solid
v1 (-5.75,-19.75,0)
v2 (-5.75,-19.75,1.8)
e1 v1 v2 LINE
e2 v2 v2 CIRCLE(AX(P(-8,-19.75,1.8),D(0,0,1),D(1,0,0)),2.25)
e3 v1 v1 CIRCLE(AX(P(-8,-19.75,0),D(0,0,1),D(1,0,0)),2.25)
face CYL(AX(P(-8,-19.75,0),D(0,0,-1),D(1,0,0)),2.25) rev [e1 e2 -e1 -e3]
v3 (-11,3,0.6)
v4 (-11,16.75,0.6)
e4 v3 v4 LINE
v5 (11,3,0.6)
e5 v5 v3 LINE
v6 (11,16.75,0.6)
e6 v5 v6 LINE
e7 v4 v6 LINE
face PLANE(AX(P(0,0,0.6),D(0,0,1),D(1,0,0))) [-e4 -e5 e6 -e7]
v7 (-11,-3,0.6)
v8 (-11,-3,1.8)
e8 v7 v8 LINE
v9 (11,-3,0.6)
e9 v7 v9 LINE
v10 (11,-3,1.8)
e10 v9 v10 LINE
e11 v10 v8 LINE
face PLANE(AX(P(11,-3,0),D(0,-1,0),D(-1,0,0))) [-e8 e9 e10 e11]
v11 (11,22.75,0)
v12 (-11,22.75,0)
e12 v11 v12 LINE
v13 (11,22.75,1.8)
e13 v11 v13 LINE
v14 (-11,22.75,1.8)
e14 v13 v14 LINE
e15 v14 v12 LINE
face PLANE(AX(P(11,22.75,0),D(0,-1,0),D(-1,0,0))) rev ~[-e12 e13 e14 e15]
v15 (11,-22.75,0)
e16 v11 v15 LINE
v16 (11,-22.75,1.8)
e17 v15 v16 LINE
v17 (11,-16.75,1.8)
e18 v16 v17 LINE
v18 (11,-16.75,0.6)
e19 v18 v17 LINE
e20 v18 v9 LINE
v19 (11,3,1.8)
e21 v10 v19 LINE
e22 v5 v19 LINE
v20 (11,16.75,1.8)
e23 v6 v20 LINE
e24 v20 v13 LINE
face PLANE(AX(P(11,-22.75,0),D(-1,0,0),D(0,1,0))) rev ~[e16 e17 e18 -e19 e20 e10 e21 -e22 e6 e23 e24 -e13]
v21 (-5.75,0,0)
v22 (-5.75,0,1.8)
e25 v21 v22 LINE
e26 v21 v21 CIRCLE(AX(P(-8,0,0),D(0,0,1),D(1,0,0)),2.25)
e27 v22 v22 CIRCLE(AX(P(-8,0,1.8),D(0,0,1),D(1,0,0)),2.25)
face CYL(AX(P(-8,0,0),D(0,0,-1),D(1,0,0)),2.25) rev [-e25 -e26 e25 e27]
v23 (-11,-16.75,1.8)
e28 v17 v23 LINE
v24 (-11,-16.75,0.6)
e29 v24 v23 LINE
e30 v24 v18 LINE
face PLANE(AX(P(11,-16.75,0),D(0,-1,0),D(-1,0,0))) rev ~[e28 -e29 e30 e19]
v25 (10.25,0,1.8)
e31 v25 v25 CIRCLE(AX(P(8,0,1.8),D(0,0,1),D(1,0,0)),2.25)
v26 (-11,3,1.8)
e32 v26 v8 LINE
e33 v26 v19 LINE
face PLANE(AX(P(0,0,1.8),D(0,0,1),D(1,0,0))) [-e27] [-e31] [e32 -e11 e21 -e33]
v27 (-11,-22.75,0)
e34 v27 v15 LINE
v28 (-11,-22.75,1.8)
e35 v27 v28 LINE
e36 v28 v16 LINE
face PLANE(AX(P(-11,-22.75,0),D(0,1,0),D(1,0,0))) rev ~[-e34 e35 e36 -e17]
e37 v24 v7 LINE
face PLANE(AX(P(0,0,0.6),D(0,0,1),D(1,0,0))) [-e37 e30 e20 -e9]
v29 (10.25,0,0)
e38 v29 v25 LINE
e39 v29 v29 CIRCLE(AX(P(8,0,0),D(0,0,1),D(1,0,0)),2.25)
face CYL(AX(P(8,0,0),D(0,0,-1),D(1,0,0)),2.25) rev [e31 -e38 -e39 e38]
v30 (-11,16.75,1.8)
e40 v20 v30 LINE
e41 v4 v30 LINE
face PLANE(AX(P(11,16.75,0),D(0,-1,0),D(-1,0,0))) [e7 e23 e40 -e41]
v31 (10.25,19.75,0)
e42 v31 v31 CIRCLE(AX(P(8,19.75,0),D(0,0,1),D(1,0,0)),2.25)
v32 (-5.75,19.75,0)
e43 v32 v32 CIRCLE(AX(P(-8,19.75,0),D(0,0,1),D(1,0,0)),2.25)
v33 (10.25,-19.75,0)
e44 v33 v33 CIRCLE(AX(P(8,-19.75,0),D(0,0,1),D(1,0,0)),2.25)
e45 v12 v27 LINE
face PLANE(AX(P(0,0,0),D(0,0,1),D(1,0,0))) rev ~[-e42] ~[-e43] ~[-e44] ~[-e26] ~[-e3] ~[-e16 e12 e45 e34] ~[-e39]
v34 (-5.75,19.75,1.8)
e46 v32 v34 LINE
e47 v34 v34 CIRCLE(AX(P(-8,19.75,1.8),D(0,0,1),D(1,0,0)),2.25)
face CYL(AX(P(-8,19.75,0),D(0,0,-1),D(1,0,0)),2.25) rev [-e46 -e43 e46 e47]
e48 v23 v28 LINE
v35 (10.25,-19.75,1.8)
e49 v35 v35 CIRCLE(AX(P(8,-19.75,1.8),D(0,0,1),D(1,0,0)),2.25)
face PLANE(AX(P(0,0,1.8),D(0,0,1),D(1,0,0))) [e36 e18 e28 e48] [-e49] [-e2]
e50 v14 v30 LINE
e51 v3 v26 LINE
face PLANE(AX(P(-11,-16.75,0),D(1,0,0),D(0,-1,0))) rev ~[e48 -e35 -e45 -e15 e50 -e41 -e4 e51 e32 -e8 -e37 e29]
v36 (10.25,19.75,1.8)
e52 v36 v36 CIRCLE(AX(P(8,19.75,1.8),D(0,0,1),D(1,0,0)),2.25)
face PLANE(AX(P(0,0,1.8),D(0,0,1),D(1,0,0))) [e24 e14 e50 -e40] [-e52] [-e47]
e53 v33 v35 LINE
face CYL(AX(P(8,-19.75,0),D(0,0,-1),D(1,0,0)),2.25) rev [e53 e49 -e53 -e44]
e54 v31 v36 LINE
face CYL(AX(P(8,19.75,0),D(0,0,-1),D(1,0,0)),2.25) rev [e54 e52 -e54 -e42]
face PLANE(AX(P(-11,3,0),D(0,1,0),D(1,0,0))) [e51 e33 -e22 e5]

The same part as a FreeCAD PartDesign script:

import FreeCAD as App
import Part
import Sketcher
from FreeCAD import Vector

doc = App.newDocument("Part")
body = doc.addObject("PartDesign::Body", "Body")

# Sketch on XY plane
sketch1 = doc.addObject("Sketcher::SketchObject", "Sketch")
body.addObject(sketch1)
sketch1.AttachmentSupport = (doc.XY_Plane, [""])
sketch1.MapMode = "FlatFace"
sketch1.addGeometry([
    Part.LineSegment(Vector(-11, -22.8, 0), Vector(11, -22.8, 0)),  # 0
    Part.LineSegment(Vector(11, -22.8, 0), Vector(11, 22.8, 0)),  # 1
    Part.LineSegment(Vector(11, 22.8, 0), Vector(-11, 22.8, 0)),  # 2
    Part.LineSegment(Vector(-11, 22.8, 0), Vector(-11, -22.8, 0)),  # 3
    Part.Circle(Vector(-8, -19.8, 0), Vector(0, 0, 1), 2.2),  # 4
    Part.Circle(Vector(8, -19.8, 0), Vector(0, 0, 1), 2.2),  # 5
    Part.Circle(Vector(8, 0, 0), Vector(0, 0, 1), 2.2),  # 6
    Part.Circle(Vector(-8, 0, 0), Vector(0, 0, 1), 2.2),  # 7
    Part.Circle(Vector(8, 19.8, 0), Vector(0, 0, 1), 2.2),  # 8
    Part.Circle(Vector(-8, 19.8, 0), Vector(0, 0, 1), 2.2),  # 9
], False)
sketch1.addConstraint([
    Sketcher.Constraint("Coincident", 0, 2, 1, 1),
    Sketcher.Constraint("Coincident", 1, 2, 2, 1),
    Sketcher.Constraint("Coincident", 2, 2, 3, 1),
    Sketcher.Constraint("Coincident", 3, 2, 0, 1),
    Sketcher.Constraint("Horizontal", 0),
    Sketcher.Constraint("Vertical", 1),
    Sketcher.Constraint("Horizontal", 2),
    Sketcher.Constraint("Vertical", 3),
    Sketcher.Constraint("Equal", 4, 5),
    Sketcher.Constraint("Equal", 5, 6),
    Sketcher.Constraint("Equal", 6, 7),
    Sketcher.Constraint("Equal", 7, 8),
    Sketcher.Constraint("Equal", 8, 9),
    Sketcher.Constraint("Symmetric", 6, 3, 7, 3, -1, 1),
    Sketcher.Constraint("Symmetric", 4, 3, 8, 3, -1, 1),
    Sketcher.Constraint("Symmetric", 5, 3, 9, 3, -1, 1),
    Sketcher.Constraint("Symmetric", 0, 2, 2, 2, -1, 1),
    Sketcher.Constraint("Symmetric", 4, 3, 5, 3, -2),
    Sketcher.Constraint("PointOnObject", 6, 3, -1),
    Sketcher.Constraint("Vertical", 5, 3, 6, 3),
    Sketcher.Constraint("Diameter", 4, 4.5),
    Sketcher.Constraint("DistanceX", 0, 1, 0, 2, 22.0),
    Sketcher.Constraint("DistanceX", 5, 3, 0, 2, 3.0),
    Sketcher.Constraint("DistanceY", 0, 2, 5, 3, 3.0),
    Sketcher.Constraint("DistanceY", 1, 1, 1, 2, 45.5),
])
pad1 = doc.addObject("PartDesign::Pad", "Pad")
body.addObject(pad1)
pad1.Profile = sketch1
pad1.Length = 0.6

# Sketch on XY plane
sketch2 = doc.addObject("Sketcher::SketchObject", "Sketch001")
body.addObject(sketch2)
sketch2.AttachmentSupport = (doc.XY_Plane, [""])
sketch2.MapMode = "FlatFace"
sketch2.addGeometry([
    Part.LineSegment(Vector(-11, -16.8, 0), Vector(-11, -22.8, 0)),  # 0
    Part.LineSegment(Vector(-11, -22.8, 0), Vector(11, -22.8, 0)),  # 1
    Part.LineSegment(Vector(11, -22.8, 0), Vector(11, -16.8, 0)),  # 2
    Part.LineSegment(Vector(11, -16.8, 0), Vector(-11, -16.8, 0)),  # 3
    Part.Circle(Vector(-8, -19.8, 0), Vector(0, 0, 1), 2.2),  # 4
    Part.Circle(Vector(8, -19.8, 0), Vector(0, 0, 1), 2.2),  # 5
    Part.LineSegment(Vector(-11, 3, 0), Vector(-11, -3, 0)),  # 6
    Part.LineSegment(Vector(-11, -3, 0), Vector(11, -3, 0)),  # 7
    Part.LineSegment(Vector(11, -3, 0), Vector(11, 3, 0)),  # 8
    Part.LineSegment(Vector(11, 3, 0), Vector(-11, 3, 0)),  # 9
    Part.Circle(Vector(-8, 0, 0), Vector(0, 0, 1), 2.2),  # 10
    Part.Circle(Vector(8, 0, 0), Vector(0, 0, 1), 2.2),  # 11
    Part.LineSegment(Vector(-11, 22.8, 0), Vector(-11, 16.8, 0)),  # 12
    Part.LineSegment(Vector(-11, 16.8, 0), Vector(11, 16.8, 0)),  # 13
    Part.LineSegment(Vector(11, 16.8, 0), Vector(11, 22.8, 0)),  # 14
    Part.LineSegment(Vector(11, 22.8, 0), Vector(-11, 22.8, 0)),  # 15
    Part.Circle(Vector(-8, 19.8, 0), Vector(0, 0, 1), 2.2),  # 16
    Part.Circle(Vector(8, 19.8, 0), Vector(0, 0, 1), 2.2),  # 17
], False)
sketch2.addConstraint([
    Sketcher.Constraint("Coincident", 0, 2, 1, 1),
    Sketcher.Constraint("Coincident", 1, 2, 2, 1),
    Sketcher.Constraint("Coincident", 2, 2, 3, 1),
    Sketcher.Constraint("Coincident", 3, 2, 0, 1),
    Sketcher.Constraint("Coincident", 6, 2, 7, 1),
    Sketcher.Constraint("Coincident", 7, 2, 8, 1),
    Sketcher.Constraint("Coincident", 8, 2, 9, 1),
    Sketcher.Constraint("Coincident", 9, 2, 6, 1),
    Sketcher.Constraint("Coincident", 12, 2, 13, 1),
    Sketcher.Constraint("Coincident", 13, 2, 14, 1),
    Sketcher.Constraint("Coincident", 14, 2, 15, 1),
    Sketcher.Constraint("Coincident", 15, 2, 12, 1),
    Sketcher.Constraint("Vertical", 0),
    Sketcher.Constraint("Horizontal", 1),
    Sketcher.Constraint("Vertical", 2),
    Sketcher.Constraint("Horizontal", 3),
    Sketcher.Constraint("Vertical", 6),
    Sketcher.Constraint("Horizontal", 7),
    Sketcher.Constraint("Vertical", 8),
    Sketcher.Constraint("Horizontal", 9),
    Sketcher.Constraint("Vertical", 12),
    Sketcher.Constraint("Horizontal", 13),
    Sketcher.Constraint("Vertical", 14),
    Sketcher.Constraint("Horizontal", 15),
    Sketcher.Constraint("Equal", 4, 5),
    Sketcher.Constraint("Equal", 5, 10),
    Sketcher.Constraint("Equal", 10, 11),
    Sketcher.Constraint("Equal", 11, 16),
    Sketcher.Constraint("Equal", 16, 17),
    Sketcher.Constraint("Symmetric", 10, 3, 11, 3, -1, 1),
    Sketcher.Constraint("Symmetric", 5, 3, 16, 3, -1, 1),
    Sketcher.Constraint("Symmetric", 4, 3, 17, 3, -1, 1),
    Sketcher.Constraint("Symmetric", 6, 2, 8, 2, -1, 1),
    Sketcher.Constraint("Symmetric", 2, 2, 12, 2, -1, 1),
    Sketcher.Constraint("Symmetric", 0, 2, 14, 2, -1, 1),
    Sketcher.Constraint("Symmetric", 4, 3, 5, 3, -2),
    Sketcher.Constraint("PointOnObject", 10, 3, -1),
    Sketcher.Constraint("Vertical", 4, 3, 10, 3),
    Sketcher.Constraint("Vertical", 3, 2, 6, 2),
    Sketcher.Constraint("Vertical", 2, 2, 7, 2),
    Sketcher.Constraint("Equal", 2, 6),
    Sketcher.Constraint("Diameter", 4, 4.5),
    Sketcher.Constraint("DistanceX", 1, 1, 1, 2, 22.0),
    Sketcher.Constraint("DistanceY", 6, 2, -1, 1, 3.0),
    Sketcher.Constraint("DistanceX", 0, 2, 4, 3, 3.0),
    Sketcher.Constraint("DistanceY", 0, 2, 4, 3, 3.0),
    Sketcher.Constraint("DistanceY", 4, 3, 16, 3, 39.5),
])
pad2 = doc.addObject("PartDesign::Pad", "Pad001")
body.addObject(pad2)
pad2.Profile = sketch2
pad2.Length = 1.8

doc.recompute()
